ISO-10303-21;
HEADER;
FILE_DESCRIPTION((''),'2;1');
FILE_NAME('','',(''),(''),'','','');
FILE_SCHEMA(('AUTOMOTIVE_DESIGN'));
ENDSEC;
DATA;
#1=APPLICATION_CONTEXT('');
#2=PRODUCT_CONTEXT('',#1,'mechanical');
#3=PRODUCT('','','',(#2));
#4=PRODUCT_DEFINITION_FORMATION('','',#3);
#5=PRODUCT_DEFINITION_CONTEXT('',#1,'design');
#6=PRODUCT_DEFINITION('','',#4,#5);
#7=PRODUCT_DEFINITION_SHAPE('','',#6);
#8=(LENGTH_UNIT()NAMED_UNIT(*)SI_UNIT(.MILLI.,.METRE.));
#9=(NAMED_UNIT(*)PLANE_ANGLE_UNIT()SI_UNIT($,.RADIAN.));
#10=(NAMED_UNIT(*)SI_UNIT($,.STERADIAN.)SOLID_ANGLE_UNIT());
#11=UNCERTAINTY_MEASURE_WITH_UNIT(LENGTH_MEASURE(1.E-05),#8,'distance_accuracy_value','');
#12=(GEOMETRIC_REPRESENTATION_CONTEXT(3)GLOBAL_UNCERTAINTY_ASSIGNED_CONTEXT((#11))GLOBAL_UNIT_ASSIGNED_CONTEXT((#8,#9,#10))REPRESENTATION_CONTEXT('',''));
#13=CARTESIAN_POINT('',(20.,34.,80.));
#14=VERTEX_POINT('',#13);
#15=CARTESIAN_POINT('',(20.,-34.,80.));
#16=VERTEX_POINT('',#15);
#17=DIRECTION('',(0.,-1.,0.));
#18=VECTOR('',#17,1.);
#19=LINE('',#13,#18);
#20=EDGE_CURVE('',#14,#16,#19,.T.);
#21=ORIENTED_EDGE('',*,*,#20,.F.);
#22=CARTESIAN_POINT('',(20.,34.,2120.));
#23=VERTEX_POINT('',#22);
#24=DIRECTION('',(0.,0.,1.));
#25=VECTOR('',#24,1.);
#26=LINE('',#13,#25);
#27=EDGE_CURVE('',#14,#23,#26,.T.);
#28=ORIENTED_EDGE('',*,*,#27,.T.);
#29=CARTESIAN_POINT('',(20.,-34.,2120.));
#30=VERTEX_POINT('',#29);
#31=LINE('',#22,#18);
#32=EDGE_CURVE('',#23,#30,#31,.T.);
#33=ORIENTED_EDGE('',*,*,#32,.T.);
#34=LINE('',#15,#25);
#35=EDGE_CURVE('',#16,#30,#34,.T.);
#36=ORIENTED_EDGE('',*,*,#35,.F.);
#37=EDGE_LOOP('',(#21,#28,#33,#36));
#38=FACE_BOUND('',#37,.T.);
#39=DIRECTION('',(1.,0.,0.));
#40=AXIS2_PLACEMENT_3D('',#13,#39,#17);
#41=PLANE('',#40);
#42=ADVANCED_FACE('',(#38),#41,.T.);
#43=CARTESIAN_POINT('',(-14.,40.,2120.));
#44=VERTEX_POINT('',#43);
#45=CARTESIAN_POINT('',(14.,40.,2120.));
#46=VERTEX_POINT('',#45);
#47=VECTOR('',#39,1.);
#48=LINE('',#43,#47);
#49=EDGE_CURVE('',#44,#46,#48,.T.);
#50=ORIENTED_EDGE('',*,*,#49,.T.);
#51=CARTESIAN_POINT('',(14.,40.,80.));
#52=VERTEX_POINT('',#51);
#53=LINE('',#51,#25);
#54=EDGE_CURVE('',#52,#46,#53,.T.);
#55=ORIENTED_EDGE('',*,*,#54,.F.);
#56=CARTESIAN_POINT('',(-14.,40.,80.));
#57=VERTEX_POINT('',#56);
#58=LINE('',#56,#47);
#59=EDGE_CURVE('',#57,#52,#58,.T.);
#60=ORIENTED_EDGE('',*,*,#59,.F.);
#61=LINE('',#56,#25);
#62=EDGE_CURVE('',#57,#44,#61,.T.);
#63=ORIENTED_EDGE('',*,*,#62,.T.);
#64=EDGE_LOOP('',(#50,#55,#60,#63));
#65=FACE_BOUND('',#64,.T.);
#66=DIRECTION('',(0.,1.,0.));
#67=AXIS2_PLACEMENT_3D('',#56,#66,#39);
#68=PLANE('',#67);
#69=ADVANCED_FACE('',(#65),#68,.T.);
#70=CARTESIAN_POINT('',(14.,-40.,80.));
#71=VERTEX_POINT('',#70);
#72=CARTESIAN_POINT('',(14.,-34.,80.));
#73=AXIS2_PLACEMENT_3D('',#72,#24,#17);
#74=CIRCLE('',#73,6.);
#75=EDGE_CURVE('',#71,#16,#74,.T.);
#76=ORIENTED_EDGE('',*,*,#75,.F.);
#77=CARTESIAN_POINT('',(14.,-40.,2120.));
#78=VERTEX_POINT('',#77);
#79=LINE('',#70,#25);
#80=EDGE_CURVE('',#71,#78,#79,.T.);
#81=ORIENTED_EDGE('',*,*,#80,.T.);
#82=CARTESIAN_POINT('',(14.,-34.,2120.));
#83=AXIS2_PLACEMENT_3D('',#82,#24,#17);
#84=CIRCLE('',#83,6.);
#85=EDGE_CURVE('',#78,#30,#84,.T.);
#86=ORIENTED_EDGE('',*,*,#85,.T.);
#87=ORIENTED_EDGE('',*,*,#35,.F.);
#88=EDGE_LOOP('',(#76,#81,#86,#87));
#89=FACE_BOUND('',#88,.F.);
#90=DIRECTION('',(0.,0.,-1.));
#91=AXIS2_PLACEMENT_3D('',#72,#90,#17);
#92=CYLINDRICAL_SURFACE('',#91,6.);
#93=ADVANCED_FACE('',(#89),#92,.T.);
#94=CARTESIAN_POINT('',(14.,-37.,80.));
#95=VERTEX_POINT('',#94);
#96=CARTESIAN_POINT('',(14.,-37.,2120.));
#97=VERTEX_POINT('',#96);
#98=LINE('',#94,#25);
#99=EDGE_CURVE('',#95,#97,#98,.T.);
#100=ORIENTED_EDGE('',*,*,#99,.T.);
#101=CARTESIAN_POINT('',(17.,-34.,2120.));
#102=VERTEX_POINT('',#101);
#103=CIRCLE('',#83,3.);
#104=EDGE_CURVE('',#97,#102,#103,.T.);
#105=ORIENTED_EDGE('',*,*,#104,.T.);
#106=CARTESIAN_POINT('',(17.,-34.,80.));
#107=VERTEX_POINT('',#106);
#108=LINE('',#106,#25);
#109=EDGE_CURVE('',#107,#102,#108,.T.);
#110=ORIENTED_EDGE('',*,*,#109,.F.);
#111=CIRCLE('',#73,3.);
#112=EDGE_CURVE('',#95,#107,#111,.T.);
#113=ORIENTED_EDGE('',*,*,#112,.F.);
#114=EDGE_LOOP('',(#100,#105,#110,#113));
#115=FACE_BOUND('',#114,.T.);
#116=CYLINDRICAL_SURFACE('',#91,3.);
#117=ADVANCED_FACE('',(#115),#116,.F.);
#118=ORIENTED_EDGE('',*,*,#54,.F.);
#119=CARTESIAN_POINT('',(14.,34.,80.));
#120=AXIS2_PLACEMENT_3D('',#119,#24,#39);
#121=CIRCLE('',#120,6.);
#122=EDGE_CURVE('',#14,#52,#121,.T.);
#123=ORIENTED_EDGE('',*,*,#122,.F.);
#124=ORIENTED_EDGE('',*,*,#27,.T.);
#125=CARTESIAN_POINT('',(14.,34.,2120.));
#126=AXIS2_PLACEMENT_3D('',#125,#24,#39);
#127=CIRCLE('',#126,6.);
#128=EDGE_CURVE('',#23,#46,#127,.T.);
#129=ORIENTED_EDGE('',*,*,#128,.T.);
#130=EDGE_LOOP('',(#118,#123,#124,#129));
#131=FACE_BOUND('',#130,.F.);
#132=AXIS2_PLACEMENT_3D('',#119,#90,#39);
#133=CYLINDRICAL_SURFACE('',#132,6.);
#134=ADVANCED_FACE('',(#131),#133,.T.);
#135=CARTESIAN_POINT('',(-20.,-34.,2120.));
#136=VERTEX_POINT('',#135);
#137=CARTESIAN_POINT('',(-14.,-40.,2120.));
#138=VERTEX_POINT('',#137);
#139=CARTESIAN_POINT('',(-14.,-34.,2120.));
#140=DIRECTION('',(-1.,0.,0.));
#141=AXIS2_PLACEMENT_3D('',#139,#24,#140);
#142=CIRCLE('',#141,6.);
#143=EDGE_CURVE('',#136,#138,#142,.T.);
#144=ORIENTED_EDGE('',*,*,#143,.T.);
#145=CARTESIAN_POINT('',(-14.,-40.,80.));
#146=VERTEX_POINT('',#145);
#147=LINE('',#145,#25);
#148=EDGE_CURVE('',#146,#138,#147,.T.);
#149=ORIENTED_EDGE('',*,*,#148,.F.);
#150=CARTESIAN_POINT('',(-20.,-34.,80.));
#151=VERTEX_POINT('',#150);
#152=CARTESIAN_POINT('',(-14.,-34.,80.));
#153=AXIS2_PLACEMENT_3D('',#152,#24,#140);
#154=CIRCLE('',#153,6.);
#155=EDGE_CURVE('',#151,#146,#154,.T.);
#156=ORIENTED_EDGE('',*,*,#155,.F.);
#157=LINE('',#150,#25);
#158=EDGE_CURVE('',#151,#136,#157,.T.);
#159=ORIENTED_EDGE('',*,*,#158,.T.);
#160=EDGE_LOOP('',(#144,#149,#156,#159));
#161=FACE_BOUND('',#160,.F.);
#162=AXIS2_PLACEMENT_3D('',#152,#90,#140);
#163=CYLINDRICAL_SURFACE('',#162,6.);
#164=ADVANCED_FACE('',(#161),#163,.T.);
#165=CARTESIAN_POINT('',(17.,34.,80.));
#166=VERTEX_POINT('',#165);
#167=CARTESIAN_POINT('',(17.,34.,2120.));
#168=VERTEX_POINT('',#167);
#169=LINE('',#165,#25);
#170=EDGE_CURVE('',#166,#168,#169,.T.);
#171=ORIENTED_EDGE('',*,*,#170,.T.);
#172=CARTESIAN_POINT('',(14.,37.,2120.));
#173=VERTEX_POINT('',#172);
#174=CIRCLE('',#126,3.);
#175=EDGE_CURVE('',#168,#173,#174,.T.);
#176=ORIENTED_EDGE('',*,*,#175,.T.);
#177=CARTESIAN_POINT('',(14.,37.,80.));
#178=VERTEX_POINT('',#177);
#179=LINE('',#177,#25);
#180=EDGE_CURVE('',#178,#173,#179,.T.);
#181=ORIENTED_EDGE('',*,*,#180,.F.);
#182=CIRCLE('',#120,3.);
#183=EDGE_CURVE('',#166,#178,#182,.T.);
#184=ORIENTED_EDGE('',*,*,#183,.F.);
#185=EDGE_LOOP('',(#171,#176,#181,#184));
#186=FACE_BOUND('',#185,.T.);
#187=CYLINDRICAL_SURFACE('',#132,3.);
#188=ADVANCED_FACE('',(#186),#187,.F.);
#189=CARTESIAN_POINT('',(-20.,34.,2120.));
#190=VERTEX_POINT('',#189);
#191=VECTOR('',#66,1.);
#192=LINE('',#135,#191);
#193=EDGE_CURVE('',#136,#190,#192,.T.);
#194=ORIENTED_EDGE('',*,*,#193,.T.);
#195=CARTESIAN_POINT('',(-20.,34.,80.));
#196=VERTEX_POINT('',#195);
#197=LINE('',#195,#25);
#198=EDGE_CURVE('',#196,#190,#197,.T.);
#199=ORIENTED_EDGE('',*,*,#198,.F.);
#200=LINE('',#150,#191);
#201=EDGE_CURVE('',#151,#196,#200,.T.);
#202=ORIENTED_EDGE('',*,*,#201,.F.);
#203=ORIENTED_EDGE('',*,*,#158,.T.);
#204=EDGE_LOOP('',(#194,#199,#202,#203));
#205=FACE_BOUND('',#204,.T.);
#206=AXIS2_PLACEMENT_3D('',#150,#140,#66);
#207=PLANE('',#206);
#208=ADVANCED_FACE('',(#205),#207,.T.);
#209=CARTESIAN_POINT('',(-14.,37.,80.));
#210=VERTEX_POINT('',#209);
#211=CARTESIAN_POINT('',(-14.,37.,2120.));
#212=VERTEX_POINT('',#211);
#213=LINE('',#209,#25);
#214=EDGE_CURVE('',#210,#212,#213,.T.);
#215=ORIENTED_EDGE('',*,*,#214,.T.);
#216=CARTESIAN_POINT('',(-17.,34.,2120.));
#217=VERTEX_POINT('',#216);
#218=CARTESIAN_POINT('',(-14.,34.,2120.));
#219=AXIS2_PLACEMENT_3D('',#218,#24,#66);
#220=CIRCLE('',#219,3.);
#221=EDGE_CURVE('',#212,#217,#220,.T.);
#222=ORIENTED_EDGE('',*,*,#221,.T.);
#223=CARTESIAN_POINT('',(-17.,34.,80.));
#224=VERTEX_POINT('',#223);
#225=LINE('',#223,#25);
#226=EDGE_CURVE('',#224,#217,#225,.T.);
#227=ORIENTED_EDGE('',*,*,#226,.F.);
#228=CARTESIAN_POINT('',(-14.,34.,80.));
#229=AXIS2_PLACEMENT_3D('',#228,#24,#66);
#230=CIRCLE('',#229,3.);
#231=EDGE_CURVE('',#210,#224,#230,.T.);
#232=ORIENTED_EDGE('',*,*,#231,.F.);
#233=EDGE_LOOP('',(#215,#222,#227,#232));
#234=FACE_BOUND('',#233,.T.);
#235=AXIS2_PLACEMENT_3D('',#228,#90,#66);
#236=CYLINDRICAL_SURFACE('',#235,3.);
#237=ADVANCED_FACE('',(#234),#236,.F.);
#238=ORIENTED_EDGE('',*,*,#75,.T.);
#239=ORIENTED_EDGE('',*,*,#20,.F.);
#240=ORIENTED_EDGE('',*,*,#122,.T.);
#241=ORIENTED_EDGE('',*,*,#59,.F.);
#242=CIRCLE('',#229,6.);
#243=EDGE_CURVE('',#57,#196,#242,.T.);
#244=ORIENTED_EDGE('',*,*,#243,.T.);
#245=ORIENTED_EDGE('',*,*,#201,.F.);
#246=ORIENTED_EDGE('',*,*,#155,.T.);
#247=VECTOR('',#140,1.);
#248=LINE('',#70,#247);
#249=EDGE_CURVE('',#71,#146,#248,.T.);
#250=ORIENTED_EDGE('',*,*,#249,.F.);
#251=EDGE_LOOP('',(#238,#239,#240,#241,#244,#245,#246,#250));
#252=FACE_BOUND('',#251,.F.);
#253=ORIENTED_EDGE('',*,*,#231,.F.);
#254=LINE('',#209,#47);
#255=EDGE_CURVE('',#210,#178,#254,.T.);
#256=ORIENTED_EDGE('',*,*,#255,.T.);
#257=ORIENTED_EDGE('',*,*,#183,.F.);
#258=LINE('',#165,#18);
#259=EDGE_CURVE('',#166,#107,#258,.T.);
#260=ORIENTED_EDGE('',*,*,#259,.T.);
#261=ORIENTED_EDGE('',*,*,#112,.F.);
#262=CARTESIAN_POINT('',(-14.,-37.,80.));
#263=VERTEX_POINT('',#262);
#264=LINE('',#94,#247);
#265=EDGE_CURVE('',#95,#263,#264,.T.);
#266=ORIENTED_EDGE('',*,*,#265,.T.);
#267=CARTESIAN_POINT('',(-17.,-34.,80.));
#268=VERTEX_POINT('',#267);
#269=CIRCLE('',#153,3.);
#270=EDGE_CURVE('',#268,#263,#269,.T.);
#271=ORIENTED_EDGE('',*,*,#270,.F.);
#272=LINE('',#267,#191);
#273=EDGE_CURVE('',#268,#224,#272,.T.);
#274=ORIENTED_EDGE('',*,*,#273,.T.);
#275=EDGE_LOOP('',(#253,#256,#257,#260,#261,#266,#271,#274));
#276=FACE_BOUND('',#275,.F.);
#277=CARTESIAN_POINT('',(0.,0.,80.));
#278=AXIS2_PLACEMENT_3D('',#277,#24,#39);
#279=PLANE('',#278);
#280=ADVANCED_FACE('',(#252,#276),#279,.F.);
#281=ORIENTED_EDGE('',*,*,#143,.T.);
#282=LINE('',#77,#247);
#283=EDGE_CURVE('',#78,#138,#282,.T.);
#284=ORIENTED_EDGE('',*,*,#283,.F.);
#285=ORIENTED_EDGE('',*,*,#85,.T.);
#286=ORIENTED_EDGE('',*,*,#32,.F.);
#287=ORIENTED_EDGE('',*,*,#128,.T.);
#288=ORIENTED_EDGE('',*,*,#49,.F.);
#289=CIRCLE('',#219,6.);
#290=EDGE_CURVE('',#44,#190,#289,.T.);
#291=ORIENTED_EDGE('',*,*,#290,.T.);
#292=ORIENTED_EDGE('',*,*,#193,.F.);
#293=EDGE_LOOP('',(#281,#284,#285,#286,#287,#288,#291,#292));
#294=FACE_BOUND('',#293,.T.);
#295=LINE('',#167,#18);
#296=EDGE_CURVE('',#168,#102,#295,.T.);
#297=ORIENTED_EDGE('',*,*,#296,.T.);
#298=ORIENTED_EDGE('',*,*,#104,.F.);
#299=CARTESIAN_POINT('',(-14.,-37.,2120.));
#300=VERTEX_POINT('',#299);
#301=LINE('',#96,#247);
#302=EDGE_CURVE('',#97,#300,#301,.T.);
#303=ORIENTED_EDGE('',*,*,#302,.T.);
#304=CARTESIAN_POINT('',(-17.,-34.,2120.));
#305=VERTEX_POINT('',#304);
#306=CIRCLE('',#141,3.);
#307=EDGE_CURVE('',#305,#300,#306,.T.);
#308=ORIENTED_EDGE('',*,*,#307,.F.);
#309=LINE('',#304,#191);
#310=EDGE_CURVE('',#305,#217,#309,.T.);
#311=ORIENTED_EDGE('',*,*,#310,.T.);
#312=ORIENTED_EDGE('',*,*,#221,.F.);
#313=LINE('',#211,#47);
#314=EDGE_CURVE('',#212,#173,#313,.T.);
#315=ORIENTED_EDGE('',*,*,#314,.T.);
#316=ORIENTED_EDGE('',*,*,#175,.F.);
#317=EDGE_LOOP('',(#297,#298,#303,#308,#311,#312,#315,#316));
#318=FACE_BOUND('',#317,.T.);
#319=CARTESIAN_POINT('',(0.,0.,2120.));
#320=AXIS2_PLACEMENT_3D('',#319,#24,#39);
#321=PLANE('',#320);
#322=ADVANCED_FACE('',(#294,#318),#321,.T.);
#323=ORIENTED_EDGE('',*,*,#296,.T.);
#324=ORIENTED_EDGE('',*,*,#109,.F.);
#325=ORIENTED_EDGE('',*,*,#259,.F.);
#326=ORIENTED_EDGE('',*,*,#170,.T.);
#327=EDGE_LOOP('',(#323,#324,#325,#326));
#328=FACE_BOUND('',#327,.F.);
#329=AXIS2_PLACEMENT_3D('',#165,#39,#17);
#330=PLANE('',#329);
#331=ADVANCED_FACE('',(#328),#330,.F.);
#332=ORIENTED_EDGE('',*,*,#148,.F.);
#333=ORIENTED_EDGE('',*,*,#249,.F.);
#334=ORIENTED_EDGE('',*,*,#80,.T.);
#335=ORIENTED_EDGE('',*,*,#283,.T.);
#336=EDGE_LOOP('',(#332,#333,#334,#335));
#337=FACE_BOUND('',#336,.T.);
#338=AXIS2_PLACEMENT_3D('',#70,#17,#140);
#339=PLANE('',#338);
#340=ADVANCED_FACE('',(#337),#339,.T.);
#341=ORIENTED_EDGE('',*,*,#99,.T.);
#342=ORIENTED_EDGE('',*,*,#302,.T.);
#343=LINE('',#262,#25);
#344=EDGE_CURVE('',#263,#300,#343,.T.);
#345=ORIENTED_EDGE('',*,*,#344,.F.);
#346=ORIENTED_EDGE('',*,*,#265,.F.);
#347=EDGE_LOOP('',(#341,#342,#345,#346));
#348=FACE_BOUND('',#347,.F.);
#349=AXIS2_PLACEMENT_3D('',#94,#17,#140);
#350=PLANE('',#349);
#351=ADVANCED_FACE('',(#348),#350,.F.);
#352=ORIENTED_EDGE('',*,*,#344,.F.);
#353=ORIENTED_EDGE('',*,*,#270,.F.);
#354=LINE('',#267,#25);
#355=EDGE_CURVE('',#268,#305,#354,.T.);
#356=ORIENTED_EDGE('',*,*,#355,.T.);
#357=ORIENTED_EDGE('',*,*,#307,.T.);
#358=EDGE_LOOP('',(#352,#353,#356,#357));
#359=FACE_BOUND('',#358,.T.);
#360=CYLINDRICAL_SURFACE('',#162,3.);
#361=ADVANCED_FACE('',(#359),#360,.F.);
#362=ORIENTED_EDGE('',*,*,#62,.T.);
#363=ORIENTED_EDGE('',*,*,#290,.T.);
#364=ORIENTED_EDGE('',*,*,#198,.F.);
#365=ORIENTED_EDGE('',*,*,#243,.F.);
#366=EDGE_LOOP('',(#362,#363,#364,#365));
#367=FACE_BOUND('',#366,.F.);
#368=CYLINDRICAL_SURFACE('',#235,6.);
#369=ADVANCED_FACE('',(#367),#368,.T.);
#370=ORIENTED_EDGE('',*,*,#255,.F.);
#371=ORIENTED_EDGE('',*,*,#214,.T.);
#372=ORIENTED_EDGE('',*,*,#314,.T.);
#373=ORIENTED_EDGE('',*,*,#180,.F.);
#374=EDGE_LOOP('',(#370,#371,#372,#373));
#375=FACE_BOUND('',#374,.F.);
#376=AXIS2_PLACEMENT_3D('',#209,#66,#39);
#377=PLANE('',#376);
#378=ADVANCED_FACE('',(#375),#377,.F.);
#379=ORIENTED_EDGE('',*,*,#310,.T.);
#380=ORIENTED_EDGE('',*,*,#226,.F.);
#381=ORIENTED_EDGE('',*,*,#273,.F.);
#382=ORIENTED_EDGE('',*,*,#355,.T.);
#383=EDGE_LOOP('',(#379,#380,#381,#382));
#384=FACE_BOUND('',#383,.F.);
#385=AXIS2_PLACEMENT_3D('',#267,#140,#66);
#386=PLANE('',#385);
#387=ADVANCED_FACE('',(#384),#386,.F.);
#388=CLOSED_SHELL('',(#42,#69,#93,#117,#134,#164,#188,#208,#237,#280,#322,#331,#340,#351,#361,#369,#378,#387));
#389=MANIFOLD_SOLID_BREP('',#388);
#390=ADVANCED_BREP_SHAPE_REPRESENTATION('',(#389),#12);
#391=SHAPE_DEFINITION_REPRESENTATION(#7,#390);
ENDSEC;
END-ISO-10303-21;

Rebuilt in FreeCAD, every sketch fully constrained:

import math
import FreeCAD as App
import Part
import Sketcher
Q = App.Units.Quantity

doc = App.newDocument("Part")
body = doc.addObject("PartDesign::Body", "Body")

# Sketch on XY plane
sketch1 = doc.addObject("Sketcher::SketchObject", "Sketch")
body.addObject(sketch1)
sketch1.AttachmentSupport = (doc.XY_Plane, [""])
sketch1.MapMode = "FlatFace"
sketch1.AttachmentOffset = App.Placement(App.Vector(0, 0, 80), App.Rotation())
sketch1.addGeometry([
    Part.LineSegment(App.Vector(-20, 34, 0), App.Vector(-20, -34, 0)),  # 0
    Part.ArcOfCircle(Part.Circle(App.Vector(-14, -34, 0), App.Vector(0, 0, 1), 6), math.radians(180), math.radians(270)),  # 1
    Part.LineSegment(App.Vector(-14, -40, 0), App.Vector(14, -40, 0)),  # 2
    Part.ArcOfCircle(Part.Circle(App.Vector(14, -34, 0), App.Vector(0, 0, 1), 6), math.radians(-90), math.radians(0)),  # 3
    Part.LineSegment(App.Vector(20, -34, 0), App.Vector(20, 34, 0)),  # 4
    Part.ArcOfCircle(Part.Circle(App.Vector(14, 34, 0), App.Vector(0, 0, 1), 6), math.radians(0), math.radians(90)),  # 5
    Part.LineSegment(App.Vector(14, 40, 0), App.Vector(-14, 40, 0)),  # 6
    Part.ArcOfCircle(Part.Circle(App.Vector(-14, 34, 0), App.Vector(0, 0, 1), 6), math.radians(90), math.radians(180)),  # 7
    Part.ArcOfCircle(Part.Circle(App.Vector(-14, 34, 0), App.Vector(0, 0, 1), 3), math.radians(90), math.radians(180)),  # 8
    Part.LineSegment(App.Vector(-14, 37, 0), App.Vector(14, 37, 0)),  # 9
    Part.ArcOfCircle(Part.Circle(App.Vector(14, 34, 0), App.Vector(0, 0, 1), 3), math.radians(0), math.radians(90)),  # 10
    Part.LineSegment(App.Vector(17, 34, 0), App.Vector(17, -34, 0)),  # 11
    Part.ArcOfCircle(Part.Circle(App.Vector(14, -34, 0), App.Vector(0, 0, 1), 3), math.radians(-90), math.radians(0)),  # 12
    Part.LineSegment(App.Vector(14, -37, 0), App.Vector(-14, -37, 0)),  # 13
    Part.ArcOfCircle(Part.Circle(App.Vector(-14, -34, 0), App.Vector(0, 0, 1), 3), math.radians(180), math.radians(270)),  # 14
    Part.LineSegment(App.Vector(-17, -34, 0), App.Vector(-17, 34, 0)),  # 15
], False)
sketch1.addConstraint([
    Sketcher.Constraint("Tangent", 0, 2, 1, 1),
    Sketcher.Constraint("Tangent", 1, 2, 2, 1),
    Sketcher.Constraint("Tangent", 2, 2, 3, 1),
    Sketcher.Constraint("Tangent", 3, 2, 4, 1),
    Sketcher.Constraint("Tangent", 4, 2, 5, 1),
    Sketcher.Constraint("Tangent", 5, 2, 6, 1),
    Sketcher.Constraint("Tangent", 6, 2, 7, 1),
    Sketcher.Constraint("Tangent", 7, 2, 0, 1),
    Sketcher.Constraint("Tangent", 8, 1, 9, 1),
    Sketcher.Constraint("Tangent", 9, 2, 10, 2),
    Sketcher.Constraint("Tangent", 10, 1, 11, 1),
    Sketcher.Constraint("Tangent", 11, 2, 12, 2),
    Sketcher.Constraint("Tangent", 12, 1, 13, 1),
    Sketcher.Constraint("Tangent", 13, 2, 14, 2),
    Sketcher.Constraint("Tangent", 14, 1, 15, 1),
    Sketcher.Constraint("Tangent", 15, 2, 8, 2),
    Sketcher.Constraint("Vertical", 0),
    Sketcher.Constraint("Horizontal", 2),
    Sketcher.Constraint("Vertical", 4),
    Sketcher.Constraint("Horizontal", 6),
    Sketcher.Constraint("Horizontal", 9),
    Sketcher.Constraint("Vertical", 11),
    Sketcher.Constraint("Horizontal", 13),
    Sketcher.Constraint("Vertical", 15),
    Sketcher.Constraint("Coincident", 8, 3, 7, 3),
    Sketcher.Constraint("Coincident", 10, 3, 5, 3),
    Sketcher.Constraint("Coincident", 12, 3, 3, 3),
    Sketcher.Constraint("Equal", 1, 3),
    Sketcher.Constraint("Equal", 3, 5),
    Sketcher.Constraint("Equal", 5, 7),
    Sketcher.Constraint("Equal", 12, 14),
    Sketcher.Constraint("Symmetric", 1, 3, 5, 3, -1, 1),
    Sketcher.Constraint("Radius", 1, Q("6 mm")),
    Sketcher.Constraint("Radius", 8, Q("3 mm")),
    Sketcher.Constraint("DistanceX", 0, 2, -1, 1, Q("20 mm")),
    Sketcher.Constraint("DistanceY", 1, 2, -1, 1, Q("40 mm")),
])
pad1 = doc.addObject("PartDesign::Pad", "Pad")
body.addObject(pad1)
pad1.Profile = sketch1
pad1.Length = 2040

doc.recompute()
